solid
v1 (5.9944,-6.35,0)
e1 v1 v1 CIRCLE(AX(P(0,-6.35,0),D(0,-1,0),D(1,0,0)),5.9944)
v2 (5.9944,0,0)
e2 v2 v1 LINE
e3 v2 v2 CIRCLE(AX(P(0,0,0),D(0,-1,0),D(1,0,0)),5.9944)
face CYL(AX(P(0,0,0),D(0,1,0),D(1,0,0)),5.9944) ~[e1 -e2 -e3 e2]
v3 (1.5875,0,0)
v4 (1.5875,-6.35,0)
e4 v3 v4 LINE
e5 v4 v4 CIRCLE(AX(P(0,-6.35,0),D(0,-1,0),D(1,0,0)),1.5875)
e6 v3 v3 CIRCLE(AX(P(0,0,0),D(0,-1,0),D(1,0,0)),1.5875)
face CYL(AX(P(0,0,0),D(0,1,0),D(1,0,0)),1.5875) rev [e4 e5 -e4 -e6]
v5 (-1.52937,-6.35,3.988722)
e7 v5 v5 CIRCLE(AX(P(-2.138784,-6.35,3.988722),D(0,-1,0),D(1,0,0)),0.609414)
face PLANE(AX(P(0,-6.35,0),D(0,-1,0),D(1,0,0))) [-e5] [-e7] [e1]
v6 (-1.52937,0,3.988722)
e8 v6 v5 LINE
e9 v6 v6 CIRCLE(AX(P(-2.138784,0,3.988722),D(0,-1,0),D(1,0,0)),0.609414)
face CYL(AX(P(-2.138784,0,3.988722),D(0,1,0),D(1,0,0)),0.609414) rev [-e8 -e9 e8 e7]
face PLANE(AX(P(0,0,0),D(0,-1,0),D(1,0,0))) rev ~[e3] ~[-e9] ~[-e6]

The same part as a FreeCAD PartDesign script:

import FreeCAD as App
import Part
import Sketcher
Q = App.Units.Quantity

doc = App.newDocument("Part")
body = doc.addObject("PartDesign::Body", "Body")

# Sketch on XZ plane
sketch1 = body.newObject("Sketcher::SketchObject", "Sketch")
sketch1.AttachmentSupport = (doc.getObject("XZ_Plane"), [""])
sketch1.MapMode = "FlatFace"
sketch1.addGeometry([
    Part.Circle(App.Vector(0, 0, 0), App.Vector(0, 0, 1), 6),
    Part.Circle(App.Vector(0, 0, 0), App.Vector(0, 0, 1), 1.6),
    Part.Circle(App.Vector(-2.1, 4, 0), App.Vector(0, 0, 1), 0.6),
], False)
sketch1.addConstraint([
    Sketcher.Constraint("Coincident", 0, 3, -1, 1),
    Sketcher.Constraint("Coincident", 1, 3, -1, 1),
    Sketcher.Constraint("Diameter", 0, Q("0.472 in")),
    Sketcher.Constraint("Diameter", 1, Q("0.125 in")),
    Sketcher.Constraint("Diameter", 2, Q("1.218828 mm")),
    Sketcher.Constraint("DistanceX", 2, 3, -1, 1, Q("2.138784 mm")),
    Sketcher.Constraint("DistanceY", -1, 1, 2, 3, Q("3.988722 mm")),
])
pad1 = body.newObject("PartDesign::Pad", "Pad")
pad1.Profile = sketch1
pad1.Length = Q("0.25 in")

doc.recompute()
